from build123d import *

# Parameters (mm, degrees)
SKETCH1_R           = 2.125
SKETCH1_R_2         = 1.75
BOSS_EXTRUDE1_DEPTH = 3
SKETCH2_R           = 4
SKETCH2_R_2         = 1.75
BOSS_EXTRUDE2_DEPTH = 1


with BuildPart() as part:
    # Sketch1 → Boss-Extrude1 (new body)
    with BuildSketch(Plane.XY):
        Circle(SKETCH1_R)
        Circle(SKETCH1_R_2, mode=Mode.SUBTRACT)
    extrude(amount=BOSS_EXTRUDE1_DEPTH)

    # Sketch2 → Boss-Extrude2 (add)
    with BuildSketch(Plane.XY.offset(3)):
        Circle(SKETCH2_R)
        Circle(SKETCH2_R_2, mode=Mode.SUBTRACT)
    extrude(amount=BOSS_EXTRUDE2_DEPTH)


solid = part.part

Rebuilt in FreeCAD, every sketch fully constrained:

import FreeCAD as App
import Part
import Sketcher

V = App.Vector
Q = App.Units.Quantity

doc = App.newDocument("Part")
params = doc.addObject("Spreadsheet::Sheet", "Params")
for row, (alias, value) in enumerate([
    ("sketch1_diameter", "3.5 mm"),
    ("sketch1_diameter2", "4.25 mm"),
    ("pad1_length", "3 mm"),
    ("sketch2_diameter", "8 mm"),
    ("sketch2_diameter2", "3.5 mm"),
    ("pad2_length", "1 mm"),
], start=1):
    params.set(f"A{row}", alias)
    params.set(f"B{row}", "=" + value)
    params.setAlias(f"B{row}", alias)

body = doc.addObject("PartDesign::Body", "Body")

# Sketch on XY plane
sketch1 = body.newObject("Sketcher::SketchObject", "Sketch")
sketch1.AttachmentSupport = (doc.getObject("XY_Plane"), [""])
sketch1.MapMode = "FlatFace"
sketch1.addGeometry([
    Part.Circle(V(0, 0, 0), V(0, 0, 1), 2.125),
    Part.Circle(V(0, 0, 0), V(0, 0, 1), 1.75),
], False)
sketch1.addConstraint([
    Sketcher.Constraint("Coincident", 0, 3, -1, 1),
    Sketcher.Constraint("Coincident", 1, 3, -1, 1),
    Sketcher.Constraint("Diameter", 1, Q("3.5 mm")),
    Sketcher.Constraint("Diameter", 0, Q("4.25 mm")),
])
sketch1.setExpression("Constraints[2]", "Params.sketch1_diameter")
sketch1.setExpression("Constraints[3]", "Params.sketch1_diameter2")
pad1 = body.newObject("PartDesign::Pad", "Pad")
pad1.Profile = sketch1
pad1.setExpression("Length", "Params.pad1_length")

# Sketch on XY plane
sketch2 = body.newObject("Sketcher::SketchObject", "Sketch001")
sketch2.AttachmentSupport = (doc.getObject("XY_Plane"), [""])
sketch2.MapMode = "FlatFace"
sketch2.AttachmentOffset = App.Placement(V(0, 0, 3), App.Rotation())
sketch2.addGeometry([
    Part.Circle(V(0, 0, 0), V(0, 0, 1), 4),
    Part.Circle(V(0, 0, 0), V(0, 0, 1), 1.75),
], False)
sketch2.addConstraint([
    Sketcher.Constraint("Coincident", 0, 3, -1, 1),
    Sketcher.Constraint("Coincident", 1, 3, -1, 1),
    Sketcher.Constraint("Diameter", 0, Q("8 mm")),
    Sketcher.Constraint("Diameter", 1, Q("3.5 mm")),
])
sketch2.setExpression("Constraints[2]", "Params.sketch2_diameter")
sketch2.setExpression("Constraints[3]", "Params.sketch2_diameter2")
pad2 = body.newObject("PartDesign::Pad", "Pad001")
pad2.Profile = sketch2
pad2.setExpression("Length", "Params.pad2_length")

doc.recompute()
